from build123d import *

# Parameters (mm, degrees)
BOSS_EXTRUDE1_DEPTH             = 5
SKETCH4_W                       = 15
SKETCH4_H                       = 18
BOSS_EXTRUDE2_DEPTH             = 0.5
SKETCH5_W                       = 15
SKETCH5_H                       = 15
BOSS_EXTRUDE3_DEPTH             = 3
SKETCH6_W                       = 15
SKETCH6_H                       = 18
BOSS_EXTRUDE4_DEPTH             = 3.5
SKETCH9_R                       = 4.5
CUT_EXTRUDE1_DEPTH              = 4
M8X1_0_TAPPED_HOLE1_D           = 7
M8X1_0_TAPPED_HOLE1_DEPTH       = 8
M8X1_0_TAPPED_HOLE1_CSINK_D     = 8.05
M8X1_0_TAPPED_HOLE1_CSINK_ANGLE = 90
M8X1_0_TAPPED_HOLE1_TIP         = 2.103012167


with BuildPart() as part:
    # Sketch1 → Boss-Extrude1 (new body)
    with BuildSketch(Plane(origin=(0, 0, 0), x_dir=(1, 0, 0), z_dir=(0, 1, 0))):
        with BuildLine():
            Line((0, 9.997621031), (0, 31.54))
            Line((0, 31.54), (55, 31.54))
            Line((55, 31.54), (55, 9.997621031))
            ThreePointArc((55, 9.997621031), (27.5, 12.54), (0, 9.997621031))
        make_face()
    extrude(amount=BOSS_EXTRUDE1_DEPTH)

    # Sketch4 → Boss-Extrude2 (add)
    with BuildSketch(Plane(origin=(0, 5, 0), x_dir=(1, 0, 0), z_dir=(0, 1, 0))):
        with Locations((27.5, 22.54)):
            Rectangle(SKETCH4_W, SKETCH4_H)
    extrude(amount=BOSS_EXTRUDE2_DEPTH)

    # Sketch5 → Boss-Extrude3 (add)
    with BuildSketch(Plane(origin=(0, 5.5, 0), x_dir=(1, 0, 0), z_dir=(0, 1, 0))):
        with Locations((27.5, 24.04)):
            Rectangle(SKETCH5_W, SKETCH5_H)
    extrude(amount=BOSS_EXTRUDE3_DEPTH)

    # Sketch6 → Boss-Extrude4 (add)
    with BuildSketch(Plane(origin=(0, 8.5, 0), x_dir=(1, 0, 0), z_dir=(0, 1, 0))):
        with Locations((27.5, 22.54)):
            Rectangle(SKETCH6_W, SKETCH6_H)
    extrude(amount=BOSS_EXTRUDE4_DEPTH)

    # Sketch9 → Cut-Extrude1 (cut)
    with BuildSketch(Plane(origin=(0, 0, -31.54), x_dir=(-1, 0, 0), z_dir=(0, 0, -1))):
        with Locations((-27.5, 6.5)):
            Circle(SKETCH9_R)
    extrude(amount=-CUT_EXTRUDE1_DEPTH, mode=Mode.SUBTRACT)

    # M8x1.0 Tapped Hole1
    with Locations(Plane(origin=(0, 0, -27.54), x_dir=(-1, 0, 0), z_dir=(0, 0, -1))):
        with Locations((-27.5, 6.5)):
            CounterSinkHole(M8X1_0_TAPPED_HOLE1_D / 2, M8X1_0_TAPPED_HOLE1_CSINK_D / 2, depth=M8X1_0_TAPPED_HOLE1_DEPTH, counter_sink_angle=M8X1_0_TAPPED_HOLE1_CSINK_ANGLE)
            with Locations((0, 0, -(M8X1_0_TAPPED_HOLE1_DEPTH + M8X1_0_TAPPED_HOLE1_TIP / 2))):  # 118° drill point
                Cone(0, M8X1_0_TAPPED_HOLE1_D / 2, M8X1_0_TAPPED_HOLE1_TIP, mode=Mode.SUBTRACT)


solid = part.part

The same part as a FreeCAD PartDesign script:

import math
import FreeCAD as App
import Part
import Sketcher
Q = App.Units.Quantity


def add_polygon(sketch, points):
    """Adds a closed chain of lines whose ends are joined by coincident constraints."""
    first, n = sketch.GeometryCount, len(points)
    for a, b in zip(points, points[1:] + points[:1]):
        sketch.addGeometry(Part.LineSegment(App.Vector(*a, 0), App.Vector(*b, 0)), False)
    for i in range(n):
        sketch.addConstraint(Sketcher.Constraint("Coincident", first + i, 2, first + (i + 1) % n, 1))

doc = App.newDocument("Part")
body = doc.addObject("PartDesign::Body", "Body")

# Sketch on XZ plane
sketch1 = doc.addObject("Sketcher::SketchObject", "Sketch")
body.addObject(sketch1)
sketch1.AttachmentSupport = (doc.XZ_Plane, [""])
sketch1.MapMode = "FlatFace"
sketch1.addGeometry(Part.LineSegment(App.Vector(0, -31.54, 0), App.Vector(0, -9.997621, 0)), False)
sketch1.addGeometry(Part.ArcOfCircle(Part.Circle(App.Vector(27.5, 137.46, 0), App.Vector(0, 0, 1), 150), math.radians(-100.563978), math.radians(-79.436022)), False)
sketch1.addGeometry(Part.LineSegment(App.Vector(55, -9.997621, 0), App.Vector(55, -31.54, 0)), False)
sketch1.addGeometry(Part.LineSegment(App.Vector(55, -31.54, 0), App.Vector(0, -31.54, 0)), False)
sketch1.addConstraint(Sketcher.Constraint("Coincident", 0, 2, 1, 1))
sketch1.addConstraint(Sketcher.Constraint("Coincident", 1, 2, 2, 1))
sketch1.addConstraint(Sketcher.Constraint("Coincident", 2, 2, 3, 1))
sketch1.addConstraint(Sketcher.Constraint("Coincident", 3, 2, 0, 1))
sketch1.addConstraint(Sketcher.Constraint("Vertical", 0))
sketch1.addConstraint(Sketcher.Constraint("Vertical", 2))
sketch1.addConstraint(Sketcher.Constraint("Horizontal", 3))
sketch1.addConstraint(Sketcher.Constraint("PointOnObject", 0, 2, -2))
sketch1.addConstraint(Sketcher.Constraint("Horizontal", 0, 2, 1, 2))
sketch1.addConstraint(Sketcher.Constraint("Radius", 1, Q("150 mm")))
sketch1.addConstraint(Sketcher.Constraint("DistanceX", 3, 2, 3, 1, Q("55 mm")))
sketch1.addConstraint(Sketcher.Constraint("DistanceY", 2, 2, 1, 3, Q("169 mm")))
sketch1.addConstraint(Sketcher.Constraint("DistanceY", -1, 1, 1, 3, Q("137.46 mm")))
pad1 = doc.addObject("PartDesign::Pad", "Pad")
body.addObject(pad1)
pad1.Profile = sketch1
pad1.Length = 5
pad1.Reversed = True

# Sketch on XZ plane
sketch2 = doc.addObject("Sketcher::SketchObject", "Sketch001")
body.addObject(sketch2)
sketch2.AttachmentSupport = (doc.XZ_Plane, [""])
sketch2.MapMode = "FlatFace"
sketch2.AttachmentOffset = App.Placement(App.Vector(0, 0, -5), App.Rotation())
add_polygon(sketch2, [(20, -31.54), (20, -13.54), (35, -13.54), (35, -31.54)])  # lines 0-3
sketch2.addConstraint(Sketcher.Constraint("Vertical", 0))
sketch2.addConstraint(Sketcher.Constraint("Horizontal", 1))
sketch2.addConstraint(Sketcher.Constraint("Vertical", 2))
sketch2.addConstraint(Sketcher.Constraint("Horizontal", 3))
sketch2.addConstraint(Sketcher.Constraint("DistanceX", 1, 1, 1, 2, Q("15 mm")))
sketch2.addConstraint(Sketcher.Constraint("DistanceY", 0, 1, 0, 2, Q("18 mm")))
sketch2.addConstraint(Sketcher.Constraint("DistanceX", -1, 1, 0, 2, Q("20 mm")))
sketch2.addConstraint(Sketcher.Constraint("DistanceY", 0, 2, -1, 1, Q("13.54 mm")))
pad2 = doc.addObject("PartDesign::Pad", "Pad001")
body.addObject(pad2)
pad2.Profile = sketch2
pad2.Length = 0.5
pad2.Reversed = True

# Sketch on XZ plane
sketch3 = doc.addObject("Sketcher::SketchObject", "Sketch002")
body.addObject(sketch3)
sketch3.AttachmentSupport = (doc.XZ_Plane, [""])
sketch3.MapMode = "FlatFace"
sketch3.AttachmentOffset = App.Placement(App.Vector(0, 0, -5.5), App.Rotation())
add_polygon(sketch3, [(20, -31.54), (20, -16.54), (35, -16.54), (35, -31.54)])  # lines 0-3
sketch3.addConstraint(Sketcher.Constraint("Vertical", 0))
sketch3.addConstraint(Sketcher.Constraint("Horizontal", 1))
sketch3.addConstraint(Sketcher.Constraint("Vertical", 2))
sketch3.addConstraint(Sketcher.Constraint("Horizontal", 3))
sketch3.addConstraint(Sketcher.Constraint("Equal", 3, 0))
sketch3.addConstraint(Sketcher.Constraint("DistanceX", 1, 1, 1, 2, Q("15 mm")))
sketch3.addConstraint(Sketcher.Constraint("DistanceX", -1, 1, 0, 2, Q("20 mm")))
sketch3.addConstraint(Sketcher.Constraint("DistanceY", 0, 2, -1, 1, Q("16.54 mm")))
pad3 = doc.addObject("PartDesign::Pad", "Pad002")
body.addObject(pad3)
pad3.Profile = sketch3
pad3.Length = 3
pad3.Reversed = True

# Sketch on XZ plane
sketch4 = doc.addObject("Sketcher::SketchObject", "Sketch003")
body.addObject(sketch4)
sketch4.AttachmentSupport = (doc.XZ_Plane, [""])
sketch4.MapMode = "FlatFace"
sketch4.AttachmentOffset = App.Placement(App.Vector(0, 0, -8.5), App.Rotation())
add_polygon(sketch4, [(20, -31.54), (20, -13.54), (35, -13.54), (35, -31.54)])  # lines 0-3
sketch4.addConstraint(Sketcher.Constraint("Vertical", 0))
sketch4.addConstraint(Sketcher.Constraint("Horizontal", 1))
sketch4.addConstraint(Sketcher.Constraint("Vertical", 2))
sketch4.addConstraint(Sketcher.Constraint("Horizontal", 3))
sketch4.addConstraint(Sketcher.Constraint("DistanceX", 1, 1, 1, 2, Q("15 mm")))
sketch4.addConstraint(Sketcher.Constraint("DistanceY", 0, 1, 0, 2, Q("18 mm")))
sketch4.addConstraint(Sketcher.Constraint("DistanceX", -1, 1, 0, 2, Q("20 mm")))
sketch4.addConstraint(Sketcher.Constraint("DistanceY", 0, 2, -1, 1, Q("13.54 mm")))
pad4 = doc.addObject("PartDesign::Pad", "Pad003")
body.addObject(pad4)
pad4.Profile = sketch4
pad4.Length = 3.5
pad4.Reversed = True

# Sketch on XY plane
sketch5 = doc.addObject("Sketcher::SketchObject", "Sketch004")
body.addObject(sketch5)
sketch5.AttachmentSupport = (doc.XY_Plane, [""])
sketch5.MapMode = "FlatFace"
sketch5.AttachmentOffset = App.Placement(App.Vector(0, 0, -31.54), App.Rotation())
sketch5.addGeometry(Part.Circle(App.Vector(27.5, 6.5, 0), App.Vector(0, 0, 1), 4.5), False)
sketch5.addConstraint(Sketcher.Constraint("Diameter", 0, Q("9 mm")))
sketch5.addConstraint(Sketcher.Constraint("DistanceX", -1, 1, 0, 3, Q("27.5 mm")))
sketch5.addConstraint(Sketcher.Constraint("DistanceY", -1, 1, 0, 3, Q("6.5 mm")))
pocket1 = doc.addObject("PartDesign::Pocket", "Pocket")
body.addObject(pocket1)
pocket1.Profile = sketch5
pocket1.Length = 4
pocket1.Reversed = True

# Sketch on XY plane
sketch6 = doc.addObject("Sketcher::SketchObject", "Sketch005")
body.addObject(sketch6)
sketch6.AttachmentSupport = (doc.XY_Plane, [""])
sketch6.MapMode = "FlatFace"
sketch6.AttachmentOffset = App.Placement(App.Vector(0, 0, -27.54), App.Rotation())
sketch6.addGeometry(Part.Circle(App.Vector(27.5, 6.5, 0), App.Vector(0, 0, 1), 3.5), False)
sketch6.addConstraint(Sketcher.Constraint("Diameter", 0, Q("7 mm")))
sketch6.addConstraint(Sketcher.Constraint("DistanceX", -1, 1, 0, 3, Q("27.5 mm")))
sketch6.addConstraint(Sketcher.Constraint("DistanceY", -1, 1, 0, 3, Q("6.5 mm")))
doc.recompute()
hole = doc.addObject("PartDesign::Hole", "Hole")
body.addObject(hole)
hole.Profile = sketch6
hole.ThreadType = "None"
hole.Diameter = 7
hole.DepthType = "Dimension"
hole.Depth = 8
hole.DrillPoint = "Angled"
hole.DrillPointAngle = 118
hole.HoleCutType = "Countersink"
hole.HoleCutDiameter = 8.05
hole.HoleCutCountersinkAngle = 90
hole.Reversed = True

doc.recompute()
